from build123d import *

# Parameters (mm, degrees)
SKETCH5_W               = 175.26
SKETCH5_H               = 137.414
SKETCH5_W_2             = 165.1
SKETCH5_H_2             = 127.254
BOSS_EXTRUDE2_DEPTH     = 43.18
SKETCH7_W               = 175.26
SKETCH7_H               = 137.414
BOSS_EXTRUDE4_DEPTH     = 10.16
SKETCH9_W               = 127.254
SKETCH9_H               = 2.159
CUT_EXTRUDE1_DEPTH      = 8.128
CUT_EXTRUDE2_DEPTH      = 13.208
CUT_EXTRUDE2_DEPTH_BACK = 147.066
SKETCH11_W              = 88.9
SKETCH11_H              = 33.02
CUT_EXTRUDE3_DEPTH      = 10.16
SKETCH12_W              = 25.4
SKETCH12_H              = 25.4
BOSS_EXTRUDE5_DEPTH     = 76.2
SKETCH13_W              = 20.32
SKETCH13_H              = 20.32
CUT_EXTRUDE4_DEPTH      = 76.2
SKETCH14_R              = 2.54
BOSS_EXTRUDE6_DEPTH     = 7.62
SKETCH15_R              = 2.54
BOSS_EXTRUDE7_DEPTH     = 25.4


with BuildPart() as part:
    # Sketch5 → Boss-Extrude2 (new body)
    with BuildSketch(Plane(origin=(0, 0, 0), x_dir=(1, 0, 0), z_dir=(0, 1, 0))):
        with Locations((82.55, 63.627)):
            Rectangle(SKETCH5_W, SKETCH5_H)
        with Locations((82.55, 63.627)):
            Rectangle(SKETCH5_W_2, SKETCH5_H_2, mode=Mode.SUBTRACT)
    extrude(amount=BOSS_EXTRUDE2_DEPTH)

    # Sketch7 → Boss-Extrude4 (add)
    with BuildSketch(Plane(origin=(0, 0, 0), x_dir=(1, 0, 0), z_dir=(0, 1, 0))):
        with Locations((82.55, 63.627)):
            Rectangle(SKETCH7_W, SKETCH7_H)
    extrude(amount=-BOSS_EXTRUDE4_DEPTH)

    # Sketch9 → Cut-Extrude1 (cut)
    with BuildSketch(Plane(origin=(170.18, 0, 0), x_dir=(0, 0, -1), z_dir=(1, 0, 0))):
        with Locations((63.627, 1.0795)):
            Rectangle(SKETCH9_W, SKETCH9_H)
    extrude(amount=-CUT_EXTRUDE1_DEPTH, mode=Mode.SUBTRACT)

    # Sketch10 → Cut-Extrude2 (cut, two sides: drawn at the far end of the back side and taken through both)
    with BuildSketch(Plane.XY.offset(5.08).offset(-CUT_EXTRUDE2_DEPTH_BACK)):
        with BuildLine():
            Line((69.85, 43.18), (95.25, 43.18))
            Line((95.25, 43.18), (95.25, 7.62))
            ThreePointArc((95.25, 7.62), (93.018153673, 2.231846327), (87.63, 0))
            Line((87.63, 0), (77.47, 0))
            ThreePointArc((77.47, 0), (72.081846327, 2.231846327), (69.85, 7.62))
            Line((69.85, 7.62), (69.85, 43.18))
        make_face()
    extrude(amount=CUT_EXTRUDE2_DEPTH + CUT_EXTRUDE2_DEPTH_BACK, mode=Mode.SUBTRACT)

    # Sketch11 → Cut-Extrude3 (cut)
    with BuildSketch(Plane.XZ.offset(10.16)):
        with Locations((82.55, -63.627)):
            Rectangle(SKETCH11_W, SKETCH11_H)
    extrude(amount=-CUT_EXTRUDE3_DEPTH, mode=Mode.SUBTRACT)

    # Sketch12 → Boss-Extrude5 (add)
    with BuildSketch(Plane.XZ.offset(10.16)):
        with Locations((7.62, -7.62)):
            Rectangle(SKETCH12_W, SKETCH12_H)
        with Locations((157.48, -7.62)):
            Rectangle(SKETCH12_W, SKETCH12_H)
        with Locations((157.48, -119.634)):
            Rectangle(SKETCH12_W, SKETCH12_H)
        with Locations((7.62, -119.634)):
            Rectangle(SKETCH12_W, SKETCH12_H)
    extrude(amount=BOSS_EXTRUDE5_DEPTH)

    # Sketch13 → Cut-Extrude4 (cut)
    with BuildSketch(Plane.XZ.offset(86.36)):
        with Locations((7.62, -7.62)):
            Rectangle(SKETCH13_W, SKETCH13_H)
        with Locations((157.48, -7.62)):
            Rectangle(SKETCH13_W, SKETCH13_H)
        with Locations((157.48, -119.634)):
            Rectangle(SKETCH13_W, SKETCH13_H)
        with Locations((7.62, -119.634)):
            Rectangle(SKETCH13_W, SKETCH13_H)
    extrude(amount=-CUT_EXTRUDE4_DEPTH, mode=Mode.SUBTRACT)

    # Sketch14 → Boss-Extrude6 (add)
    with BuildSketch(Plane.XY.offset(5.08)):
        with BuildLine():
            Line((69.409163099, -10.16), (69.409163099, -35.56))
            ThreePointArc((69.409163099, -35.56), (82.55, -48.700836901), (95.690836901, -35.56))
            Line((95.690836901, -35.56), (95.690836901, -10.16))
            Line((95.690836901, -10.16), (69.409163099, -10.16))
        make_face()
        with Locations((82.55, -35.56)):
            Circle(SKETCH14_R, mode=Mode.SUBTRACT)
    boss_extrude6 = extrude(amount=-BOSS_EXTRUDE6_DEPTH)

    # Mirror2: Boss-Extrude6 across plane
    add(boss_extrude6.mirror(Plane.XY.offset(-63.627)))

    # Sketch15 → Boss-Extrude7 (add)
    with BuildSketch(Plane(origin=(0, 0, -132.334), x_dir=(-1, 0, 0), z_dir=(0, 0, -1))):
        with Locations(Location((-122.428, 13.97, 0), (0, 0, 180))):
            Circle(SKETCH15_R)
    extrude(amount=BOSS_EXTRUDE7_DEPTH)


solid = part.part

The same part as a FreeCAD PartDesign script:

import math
import FreeCAD as App
import Part
import Sketcher

V = App.Vector
Q = App.Units.Quantity


def add_polygon(sketch, points):
    """Adds a closed chain of lines whose ends are joined by coincident constraints."""
    first, n = sketch.GeometryCount, len(points)
    for a, b in zip(points, points[1:] + points[:1]):
        sketch.addGeometry(Part.LineSegment(App.Vector(*a, 0), App.Vector(*b, 0)), False)
    for i in range(n):
        sketch.addConstraint(Sketcher.Constraint("Coincident", first + i, 2, first + (i + 1) % n, 1))

doc = App.newDocument("Part")
body = doc.addObject("PartDesign::Body", "Body")

# Sketch on XZ plane
sketch1 = body.newObject("Sketcher::SketchObject", "Sketch")
sketch1.AttachmentSupport = (doc.getObject("XZ_Plane"), [""])
sketch1.MapMode = "FlatFace"
add_polygon(sketch1, [(-5, -132), (-5, 5), (170, 5), (170, -132)])  # lines 0-3
add_polygon(sketch1, [(165, 0), (0, 0), (0, -127), (165, -127)])  # lines 4-7
sketch1.addConstraint([
    Sketcher.Constraint("Vertical", 0),
    Sketcher.Constraint("Horizontal", 1),
    Sketcher.Constraint("Vertical", 2),
    Sketcher.Constraint("Horizontal", 3),
    Sketcher.Constraint("Horizontal", 4),
    Sketcher.Constraint("Vertical", 5),
    Sketcher.Constraint("Horizontal", 6),
    Sketcher.Constraint("Vertical", 7),
    Sketcher.Constraint("Coincident", 4, 2, -1, 1),
    Sketcher.Constraint("DistanceX", 1, 1, 1, 2, Q("6.9 in")),
    Sketcher.Constraint("DistanceX", 4, 2, 4, 1, Q("6.5 in")),
    Sketcher.Constraint("DistanceY", 0, 1, 0, 2, Q("5.41 in")),
    Sketcher.Constraint("DistanceY", 5, 2, 5, 1, Q("5.01 in")),
    Sketcher.Constraint("DistanceX", 0, 2, -1, 1, Q("0.2 in")),
    Sketcher.Constraint("DistanceY", -1, 1, 0, 2, Q("0.2 in")),
])
pad1 = body.newObject("PartDesign::Pad", "Pad")
pad1.Profile = sketch1
pad1.Length = Q("1.7 in")
pad1.Reversed = True

# Sketch on XZ plane
sketch2 = body.newObject("Sketcher::SketchObject", "Sketch001")
sketch2.AttachmentSupport = (doc.getObject("XZ_Plane"), [""])
sketch2.MapMode = "FlatFace"
add_polygon(sketch2, [(-5, -132), (-5, 5), (170, 5), (170, -132)])  # lines 0-3
sketch2.addConstraint([
    Sketcher.Constraint("Vertical", 0),
    Sketcher.Constraint("Horizontal", 1),
    Sketcher.Constraint("Vertical", 2),
    Sketcher.Constraint("Horizontal", 3),
    Sketcher.Constraint("DistanceX", 1, 1, 1, 2, Q("6.9 in")),
    Sketcher.Constraint("DistanceY", 0, 1, 0, 2, Q("5.41 in")),
    Sketcher.Constraint("DistanceX", 0, 2, -1, 1, Q("0.2 in")),
    Sketcher.Constraint("DistanceY", -1, 1, 0, 2, Q("0.2 in")),
])
pad2 = body.newObject("PartDesign::Pad", "Pad001")
pad2.Profile = sketch2
pad2.Length = Q("0.4 in")

# Sketch on YZ plane
sketch3 = body.newObject("Sketcher::SketchObject", "Sketch002")
sketch3.AttachmentSupport = (doc.getObject("YZ_Plane"), [""])
sketch3.MapMode = "FlatFace"
sketch3.AttachmentOffset = App.Placement(V(0, 0, 6.7 * 25.4), App.Rotation())
add_polygon(sketch3, [(2.2, 0), (0, 0), (0, -127.3), (2.2, -127.3)])  # lines 0-3
sketch3.addConstraint([
    Sketcher.Constraint("Horizontal", 0),
    Sketcher.Constraint("Vertical", 1),
    Sketcher.Constraint("Horizontal", 2),
    Sketcher.Constraint("Vertical", 3),
    Sketcher.Constraint("Coincident", 0, 2, -1, 1),
    Sketcher.Constraint("DistanceY", 1, 2, 1, 1, Q("5.01 in")),
    Sketcher.Constraint("DistanceX", 0, 2, 0, 1, Q("0.085 in")),
])
pocket1 = body.newObject("PartDesign::Pocket", "Pocket")
pocket1.Profile = sketch3
pocket1.Length = Q("0.32 in")

# Sketch on XY plane
sketch4 = body.newObject("Sketcher::SketchObject", "Sketch003")
sketch4.AttachmentSupport = (doc.getObject("XY_Plane"), [""])
sketch4.MapMode = "FlatFace"
sketch4.AttachmentOffset = App.Placement(V(0, 0, 0.2 * 25.4), App.Rotation())
sketch4.addGeometry([
    Part.LineSegment(V(95, 43, 0), V(70, 43, 0)),  # 0
    Part.LineSegment(V(70, 43, 0), V(70, 8, 0)),  # 1
    Part.ArcOfCircle(Part.Circle(V(77, 8, 0), V(0, 0, 1), 8), math.radians(180), math.radians(270)),  # 2
    Part.LineSegment(V(77, 0, 0), V(88, 0, 0)),  # 3
    Part.ArcOfCircle(Part.Circle(V(88, 8, 0), V(0, 0, 1), 8), math.radians(-90), math.radians(0)),  # 4
    Part.LineSegment(V(95, 8, 0), V(95, 43, 0)),  # 5
], False)
sketch4.addConstraint([
    Sketcher.Constraint("Coincident", 0, 2, 1, 1),
    Sketcher.Constraint("Tangent", 1, 2, 2, 1),
    Sketcher.Constraint("Tangent", 2, 2, 3, 1),
    Sketcher.Constraint("Tangent", 3, 2, 4, 1),
    Sketcher.Constraint("Tangent", 4, 2, 5, 1),
    Sketcher.Constraint("Coincident", 5, 2, 0, 1),
    Sketcher.Constraint("Horizontal", 0),
    Sketcher.Constraint("Vertical", 1),
    Sketcher.Constraint("Horizontal", 3),
    Sketcher.Constraint("Vertical", 5),
    Sketcher.Constraint("Equal", 2, 4),
    Sketcher.Constraint("PointOnObject", 2, 2, -1),
    Sketcher.Constraint("Radius", 2, Q("0.3 in")),
    Sketcher.Constraint("DistanceX", 0, 2, 0, 1, Q("1 in")),
    Sketcher.Constraint("DistanceY", 1, 2, 1, 1, Q("1.4 in")),
    Sketcher.Constraint("DistanceX", -1, 1, 2, 3, Q("3.05 in")),
])
pocket2 = body.newObject("PartDesign::Pocket", "Pocket001")
pocket2.Profile = sketch4
pocket2.Type = "ThroughAll"
pocket2.Midplane = True

# Sketch on XZ plane
sketch5 = body.newObject("Sketcher::SketchObject", "Sketch004")
sketch5.AttachmentSupport = (doc.getObject("XZ_Plane"), [""])
sketch5.MapMode = "FlatFace"
sketch5.AttachmentOffset = App.Placement(V(0, 0, 0.4 * 25.4), App.Rotation())
add_polygon(sketch5, [(38, -47), (38, -80), (127, -80), (127, -47)])  # lines 0-3
sketch5.addConstraint([
    Sketcher.Constraint("Vertical", 0),
    Sketcher.Constraint("Horizontal", 1),
    Sketcher.Constraint("Vertical", 2),
    Sketcher.Constraint("Horizontal", 3),
    Sketcher.Constraint("DistanceX", 1, 1, 1, 2, Q("3.5 in")),
    Sketcher.Constraint("DistanceY", 0, 2, 0, 1, Q("1.3 in")),
    Sketcher.Constraint("DistanceX", -1, 1, 1, 2, Q("5 in")),
    Sketcher.Constraint("DistanceY", 0, 2, -1, 1, Q("3.155 in")),
])
pocket3 = body.newObject("PartDesign::Pocket", "Pocket002")
pocket3.Profile = sketch5
pocket3.Length = Q("0.4 in")

# Sketch on XZ plane
sketch6 = body.newObject("Sketcher::SketchObject", "Sketch005")
sketch6.AttachmentSupport = (doc.getObject("XZ_Plane"), [""])
sketch6.MapMode = "FlatFace"
sketch6.AttachmentOffset = App.Placement(V(0, 0, 0.4 * 25.4), App.Rotation())
add_polygon(sketch6, [(-5, 5), (-5, -20), (20, -20), (20, 5)])  # lines 0-3
add_polygon(sketch6, [(145, 5), (145, -20), (170, -20), (170, 5)])  # lines 4-7
add_polygon(sketch6, [(145, -107), (145, -132), (170, -132), (170, -107)])  # lines 8-11
add_polygon(sketch6, [(-5, -107), (-5, -132), (20, -132), (20, -107)])  # lines 12-15
sketch6.addConstraint([
    Sketcher.Constraint("Vertical", 0),
    Sketcher.Constraint("Horizontal", 1),
    Sketcher.Constraint("Vertical", 2),
    Sketcher.Constraint("Horizontal", 3),
    Sketcher.Constraint("Vertical", 4),
    Sketcher.Constraint("Horizontal", 5),
    Sketcher.Constraint("Vertical", 6),
    Sketcher.Constraint("Horizontal", 7),
    Sketcher.Constraint("Vertical", 8),
    Sketcher.Constraint("Horizontal", 9),
    Sketcher.Constraint("Vertical", 10),
    Sketcher.Constraint("Horizontal", 11),
    Sketcher.Constraint("Vertical", 12),
    Sketcher.Constraint("Horizontal", 13),
    Sketcher.Constraint("Vertical", 14),
    Sketcher.Constraint("Horizontal", 15),
    Sketcher.Constraint("Horizontal", 1, 2, 4, 2),
    Sketcher.Constraint("Horizontal", 3, 2, 6, 2),
    Sketcher.Constraint("Horizontal", 9, 2, 12, 2),
    Sketcher.Constraint("Horizontal", 11, 2, 14, 2),
    Sketcher.Constraint("Vertical", 7, 2, 8, 2),
    Sketcher.Constraint("Vertical", 6, 2, 9, 2),
    Sketcher.Constraint("Vertical", 3, 2, 12, 2),
    Sketcher.Constraint("Vertical", 2, 2, 13, 2),
    Sketcher.Constraint("Equal", 3, 5),
    Sketcher.Constraint("Equal", 15, 0),
    Sketcher.Constraint("Equal", 6, 8),
    Sketcher.Constraint("DistanceX", 1, 1, 1, 2, Q("1 in")),
    Sketcher.Constraint("DistanceX", 0, 2, -1, 1, Q("0.2 in")),
    Sketcher.Constraint("DistanceY", 0, 2, -1, 1, Q("0.8 in")),
    Sketcher.Constraint("DistanceX", -1, 1, 4, 2, Q("5.7 in")),
    Sketcher.Constraint("DistanceY", 8, 2, -1, 1, Q("5.21 in")),
])
pad3 = body.newObject("PartDesign::Pad", "Pad002")
pad3.Profile = sketch6
pad3.Length = Q("3 in")

# Sketch on XZ plane
sketch7 = body.newObject("Sketcher::SketchObject", "Sketch006")
sketch7.AttachmentSupport = (doc.getObject("XZ_Plane"), [""])
sketch7.MapMode = "FlatFace"
sketch7.AttachmentOffset = App.Placement(V(0, 0, 3.4 * 25.4), App.Rotation())
add_polygon(sketch7, [(-3, 3), (-3, -18), (18, -18), (18, 3)])  # lines 0-3
add_polygon(sketch7, [(147, 3), (147, -18), (168, -18), (168, 3)])  # lines 4-7
add_polygon(sketch7, [(147, -109), (147, -130), (168, -130), (168, -109)])  # lines 8-11
add_polygon(sketch7, [(-3, -109), (-3, -130), (18, -130), (18, -109)])  # lines 12-15
sketch7.addConstraint([
    Sketcher.Constraint("Vertical", 0),
    Sketcher.Constraint("Horizontal", 1),
    Sketcher.Constraint("Vertical", 2),
    Sketcher.Constraint("Horizontal", 3),
    Sketcher.Constraint("Vertical", 4),
    Sketcher.Constraint("Horizontal", 5),
    Sketcher.Constraint("Vertical", 6),
    Sketcher.Constraint("Horizontal", 7),
    Sketcher.Constraint("Vertical", 8),
    Sketcher.Constraint("Horizontal", 9),
    Sketcher.Constraint("Vertical", 10),
    Sketcher.Constraint("Horizontal", 11),
    Sketcher.Constraint("Vertical", 12),
    Sketcher.Constraint("Horizontal", 13),
    Sketcher.Constraint("Vertical", 14),
    Sketcher.Constraint("Horizontal", 15),
    Sketcher.Constraint("Horizontal", 1, 2, 4, 2),
    Sketcher.Constraint("Horizontal", 3, 2, 6, 2),
    Sketcher.Constraint("Horizontal", 9, 2, 12, 2),
    Sketcher.Constraint("Horizontal", 11, 2, 14, 2),
    Sketcher.Constraint("Vertical", 7, 2, 8, 2),
    Sketcher.Constraint("Vertical", 6, 2, 9, 2),
    Sketcher.Constraint("Vertical", 3, 2, 12, 2),
    Sketcher.Constraint("Vertical", 2, 2, 13, 2),
    Sketcher.Constraint("Equal", 3, 5),
    Sketcher.Constraint("Equal", 15, 0),
    Sketcher.Constraint("Equal", 6, 8),
    Sketcher.Constraint("DistanceX", 1, 1, 1, 2, Q("0.8 in")),
    Sketcher.Constraint("DistanceX", 0, 2, -1, 1, Q("0.1 in")),
    Sketcher.Constraint("DistanceY", 0, 2, -1, 1, Q("0.7 in")),
    Sketcher.Constraint("DistanceX", -1, 1, 4, 2, Q("5.8 in")),
    Sketcher.Constraint("DistanceY", 8, 2, -1, 1, Q("5.11 in")),
])
pocket4 = body.newObject("PartDesign::Pocket", "Pocket003")
pocket4.Profile = sketch7
pocket4.Length = Q("3 in")

# Sketch on XY plane
sketch8 = body.newObject("Sketcher::SketchObject", "Sketch007")
sketch8.AttachmentSupport = (doc.getObject("XY_Plane"), [""])
sketch8.MapMode = "FlatFace"
sketch8.AttachmentOffset = App.Placement(V(0, 0, 0.2 * 25.4), App.Rotation())
sketch8.addGeometry([
    Part.LineSegment(V(69.4, -10.2, 0), V(69.4, -35.6, 0)),  # 0
    Part.ArcOfCircle(Part.Circle(V(82.5, -35.6, 0), V(0, 0, 1), 13.1), math.radians(180), math.radians(360)),  # 1
    Part.LineSegment(V(95.7, -35.6, 0), V(95.7, -10.2, 0)),  # 2
    Part.LineSegment(V(95.7, -10.2, 0), V(69.4, -10.2, 0)),  # 3
    Part.Circle(V(82.5, -35.6, 0), V(0, 0, 1), 2.5),  # 4
], False)
sketch8.addConstraint([
    Sketcher.Constraint("Tangent", 0, 2, 1, 1),
    Sketcher.Constraint("Tangent", 1, 2, 2, 1),
    Sketcher.Constraint("Coincident", 2, 2, 3, 1),
    Sketcher.Constraint("Coincident", 3, 2, 0, 1),
    Sketcher.Constraint("Vertical", 0),
    Sketcher.Constraint("Vertical", 2),
    Sketcher.Constraint("Horizontal", 3),
    Sketcher.Constraint("Coincident", 4, 3, 1, 3),
    Sketcher.Constraint("Diameter", 4, Q("0.2 in")),
    Sketcher.Constraint("DistanceY", 0, 2, 0, 1, Q("1 in")),
    Sketcher.Constraint("DistanceY", 1, 3, -1, 1, Q("1.4 in")),
    Sketcher.Constraint("DistanceX", -1, 1, 1, 3, Q("3.25 in")),
    Sketcher.Constraint("Radius", 1, Q("13.140837 mm")),
])
pad4 = body.newObject("PartDesign::Pad", "Pad003")
pad4.Profile = sketch8
pad4.Length = Q("0.3 in")
pad4.Reversed = True
doc.recompute()

datumplane = body.newObject("PartDesign::Plane", "DatumPlane")
datumplane.AttachmentSupport = (doc.getObject("XY_Plane"), [""])
datumplane.MapMode = "FlatFace"
datumplane.AttachmentOffset = App.Placement(V(0, 0, -2.505 * 25.4), App.Rotation())
mirrored = body.newObject("PartDesign::Mirrored", "Mirrored")
mirrored.Originals = [pad4]
mirrored.MirrorPlane = (datumplane, [""])
body.Tip = mirrored

# Sketch on XY plane
sketch9 = body.newObject("Sketcher::SketchObject", "Sketch008")
sketch9.AttachmentSupport = (doc.getObject("XY_Plane"), [""])
sketch9.MapMode = "FlatFace"
sketch9.AttachmentOffset = App.Placement(V(0, 0, -5.21 * 25.4), App.Rotation())
sketch9.addGeometry(Part.Circle(V(122.4, 14, 0), V(0, 0, 1), 2.5), False)
sketch9.addConstraint([
    Sketcher.Constraint("Diameter", 0, Q("0.2 in")),
    Sketcher.Constraint("DistanceX", -1, 1, 0, 3, Q("4.82 in")),
    Sketcher.Constraint("DistanceY", -1, 1, 0, 3, Q("0.55 in")),
])
pad5 = body.newObject("PartDesign::Pad", "Pad004")
pad5.Profile = sketch9
pad5.Length = Q("1 in")
pad5.Reversed = True

doc.recompute()
